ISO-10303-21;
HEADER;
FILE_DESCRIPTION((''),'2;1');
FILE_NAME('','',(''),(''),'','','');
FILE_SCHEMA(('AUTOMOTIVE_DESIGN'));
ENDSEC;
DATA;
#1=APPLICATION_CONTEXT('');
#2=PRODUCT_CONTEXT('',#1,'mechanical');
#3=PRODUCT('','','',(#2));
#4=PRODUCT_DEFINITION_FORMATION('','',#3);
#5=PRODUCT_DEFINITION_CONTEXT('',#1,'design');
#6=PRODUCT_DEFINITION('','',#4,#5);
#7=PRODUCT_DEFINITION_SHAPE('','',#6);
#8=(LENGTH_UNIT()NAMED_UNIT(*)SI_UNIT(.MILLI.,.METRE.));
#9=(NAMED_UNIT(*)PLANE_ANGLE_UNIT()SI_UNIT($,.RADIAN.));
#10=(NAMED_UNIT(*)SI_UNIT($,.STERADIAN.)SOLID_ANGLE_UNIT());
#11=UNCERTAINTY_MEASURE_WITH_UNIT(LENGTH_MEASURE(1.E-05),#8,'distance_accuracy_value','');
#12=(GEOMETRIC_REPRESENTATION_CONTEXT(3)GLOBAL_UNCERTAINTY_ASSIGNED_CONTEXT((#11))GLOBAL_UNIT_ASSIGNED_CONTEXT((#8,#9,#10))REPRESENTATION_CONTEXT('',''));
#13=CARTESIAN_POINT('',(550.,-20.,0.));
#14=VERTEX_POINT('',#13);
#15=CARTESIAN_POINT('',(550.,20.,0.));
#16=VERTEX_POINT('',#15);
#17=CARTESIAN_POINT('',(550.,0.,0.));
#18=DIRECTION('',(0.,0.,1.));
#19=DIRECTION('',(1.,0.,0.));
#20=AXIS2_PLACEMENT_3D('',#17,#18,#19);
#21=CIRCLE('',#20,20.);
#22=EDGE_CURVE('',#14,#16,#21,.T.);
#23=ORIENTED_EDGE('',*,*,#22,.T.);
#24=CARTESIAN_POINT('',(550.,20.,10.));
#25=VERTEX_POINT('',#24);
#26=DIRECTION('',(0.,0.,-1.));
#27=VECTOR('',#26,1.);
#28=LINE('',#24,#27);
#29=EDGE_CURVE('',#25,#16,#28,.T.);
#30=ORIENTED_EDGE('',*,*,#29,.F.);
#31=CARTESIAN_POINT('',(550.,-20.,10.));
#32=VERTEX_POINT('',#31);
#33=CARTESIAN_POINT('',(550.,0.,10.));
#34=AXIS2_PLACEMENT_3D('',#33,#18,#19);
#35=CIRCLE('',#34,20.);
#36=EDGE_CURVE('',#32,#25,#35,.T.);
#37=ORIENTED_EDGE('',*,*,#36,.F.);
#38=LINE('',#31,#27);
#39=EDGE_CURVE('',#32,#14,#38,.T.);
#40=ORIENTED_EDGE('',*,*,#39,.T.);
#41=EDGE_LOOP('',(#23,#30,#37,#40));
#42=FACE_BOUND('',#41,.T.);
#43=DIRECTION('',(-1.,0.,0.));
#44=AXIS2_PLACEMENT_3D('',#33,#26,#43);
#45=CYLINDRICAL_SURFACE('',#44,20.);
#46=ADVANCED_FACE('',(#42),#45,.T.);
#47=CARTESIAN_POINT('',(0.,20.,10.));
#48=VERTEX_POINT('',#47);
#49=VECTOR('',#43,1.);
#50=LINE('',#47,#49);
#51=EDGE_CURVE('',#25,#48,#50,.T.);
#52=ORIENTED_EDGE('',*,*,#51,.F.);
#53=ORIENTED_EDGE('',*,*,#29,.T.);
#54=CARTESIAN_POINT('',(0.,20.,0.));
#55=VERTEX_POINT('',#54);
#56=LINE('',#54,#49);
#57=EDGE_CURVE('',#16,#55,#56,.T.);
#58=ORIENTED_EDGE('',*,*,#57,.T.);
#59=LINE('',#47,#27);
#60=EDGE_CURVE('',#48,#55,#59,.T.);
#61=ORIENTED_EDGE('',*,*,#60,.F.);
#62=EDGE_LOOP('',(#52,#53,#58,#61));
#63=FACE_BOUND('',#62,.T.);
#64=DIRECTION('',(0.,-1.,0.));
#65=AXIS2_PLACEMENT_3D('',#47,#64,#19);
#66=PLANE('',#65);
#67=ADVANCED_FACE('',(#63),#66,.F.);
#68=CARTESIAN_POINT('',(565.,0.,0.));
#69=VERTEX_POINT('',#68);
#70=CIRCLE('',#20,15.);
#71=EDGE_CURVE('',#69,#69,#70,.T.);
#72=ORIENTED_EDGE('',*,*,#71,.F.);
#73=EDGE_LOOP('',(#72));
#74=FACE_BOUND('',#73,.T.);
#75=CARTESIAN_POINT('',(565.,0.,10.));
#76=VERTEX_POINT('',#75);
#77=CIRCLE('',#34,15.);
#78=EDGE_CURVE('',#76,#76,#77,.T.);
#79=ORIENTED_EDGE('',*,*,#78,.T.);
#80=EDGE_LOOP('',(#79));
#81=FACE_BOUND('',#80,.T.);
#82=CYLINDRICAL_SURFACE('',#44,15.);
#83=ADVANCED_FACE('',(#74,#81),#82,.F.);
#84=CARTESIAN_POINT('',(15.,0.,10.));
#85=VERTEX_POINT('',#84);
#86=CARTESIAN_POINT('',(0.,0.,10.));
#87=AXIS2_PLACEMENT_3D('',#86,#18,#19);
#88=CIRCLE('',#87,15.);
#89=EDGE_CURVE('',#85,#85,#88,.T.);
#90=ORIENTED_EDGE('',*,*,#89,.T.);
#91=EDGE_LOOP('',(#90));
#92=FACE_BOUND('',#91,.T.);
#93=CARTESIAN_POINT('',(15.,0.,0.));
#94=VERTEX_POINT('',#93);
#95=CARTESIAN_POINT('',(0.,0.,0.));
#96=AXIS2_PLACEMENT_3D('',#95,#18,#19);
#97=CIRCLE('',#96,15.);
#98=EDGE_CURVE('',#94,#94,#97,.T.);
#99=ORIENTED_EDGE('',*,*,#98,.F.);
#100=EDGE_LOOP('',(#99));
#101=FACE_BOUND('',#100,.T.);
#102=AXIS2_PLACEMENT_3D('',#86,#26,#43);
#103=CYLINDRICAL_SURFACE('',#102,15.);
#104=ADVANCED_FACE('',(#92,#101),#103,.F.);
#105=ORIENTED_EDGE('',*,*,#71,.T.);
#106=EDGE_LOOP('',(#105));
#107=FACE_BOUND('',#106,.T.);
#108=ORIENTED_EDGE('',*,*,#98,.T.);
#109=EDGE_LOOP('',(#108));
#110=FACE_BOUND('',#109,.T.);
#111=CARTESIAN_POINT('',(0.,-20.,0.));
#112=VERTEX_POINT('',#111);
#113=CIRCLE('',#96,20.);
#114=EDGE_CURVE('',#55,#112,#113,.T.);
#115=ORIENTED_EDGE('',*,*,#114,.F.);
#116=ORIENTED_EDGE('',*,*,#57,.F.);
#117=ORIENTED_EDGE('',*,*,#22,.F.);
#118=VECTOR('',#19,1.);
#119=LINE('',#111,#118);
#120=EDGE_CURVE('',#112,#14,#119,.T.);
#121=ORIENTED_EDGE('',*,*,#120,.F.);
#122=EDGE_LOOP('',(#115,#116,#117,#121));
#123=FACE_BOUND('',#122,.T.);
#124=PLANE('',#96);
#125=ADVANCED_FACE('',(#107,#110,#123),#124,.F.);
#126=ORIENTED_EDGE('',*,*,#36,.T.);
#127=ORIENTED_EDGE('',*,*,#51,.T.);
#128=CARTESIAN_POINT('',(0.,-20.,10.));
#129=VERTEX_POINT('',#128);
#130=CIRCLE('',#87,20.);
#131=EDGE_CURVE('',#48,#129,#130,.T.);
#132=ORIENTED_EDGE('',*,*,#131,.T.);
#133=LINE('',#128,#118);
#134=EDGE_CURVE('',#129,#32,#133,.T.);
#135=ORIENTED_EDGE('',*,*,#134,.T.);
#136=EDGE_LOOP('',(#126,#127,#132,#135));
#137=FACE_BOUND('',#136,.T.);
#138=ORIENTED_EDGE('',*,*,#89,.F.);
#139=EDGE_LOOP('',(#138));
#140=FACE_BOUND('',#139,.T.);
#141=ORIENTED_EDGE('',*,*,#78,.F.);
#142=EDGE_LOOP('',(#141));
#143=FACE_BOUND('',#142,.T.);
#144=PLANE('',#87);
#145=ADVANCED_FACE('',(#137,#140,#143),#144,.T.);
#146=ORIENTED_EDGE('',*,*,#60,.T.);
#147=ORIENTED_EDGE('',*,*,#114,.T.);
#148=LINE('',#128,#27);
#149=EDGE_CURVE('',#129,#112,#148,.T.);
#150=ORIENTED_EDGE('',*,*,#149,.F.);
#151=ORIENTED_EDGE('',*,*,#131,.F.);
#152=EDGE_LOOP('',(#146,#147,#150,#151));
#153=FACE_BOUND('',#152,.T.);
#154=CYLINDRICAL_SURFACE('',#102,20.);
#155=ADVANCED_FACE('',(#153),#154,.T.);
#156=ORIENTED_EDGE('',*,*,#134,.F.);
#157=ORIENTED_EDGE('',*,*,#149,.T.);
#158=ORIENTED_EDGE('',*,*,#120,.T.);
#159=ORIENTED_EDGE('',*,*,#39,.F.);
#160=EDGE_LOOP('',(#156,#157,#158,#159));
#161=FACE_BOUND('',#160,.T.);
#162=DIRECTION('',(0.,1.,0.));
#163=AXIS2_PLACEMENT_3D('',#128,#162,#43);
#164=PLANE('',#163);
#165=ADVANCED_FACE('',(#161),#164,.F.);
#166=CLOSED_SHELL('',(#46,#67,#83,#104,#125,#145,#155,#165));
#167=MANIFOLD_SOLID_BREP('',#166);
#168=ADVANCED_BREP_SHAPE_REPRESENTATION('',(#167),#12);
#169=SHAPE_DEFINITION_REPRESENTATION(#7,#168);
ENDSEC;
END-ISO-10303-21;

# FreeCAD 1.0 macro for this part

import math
import FreeCAD as App
import Part
import Sketcher
from FreeCAD import Vector
Q = App.Units.Quantity

doc = App.newDocument("Part")
body = doc.addObject("PartDesign::Body", "Body")

sketch1 = body.newObject("Sketcher::SketchObject", "Sketch")
sketch1.AttachmentSupport = (doc.getObject("XY_Plane"), [""])
sketch1.MapMode = "FlatFace"
sketch1.addGeometry([
    Part.LineSegment(Vector(550, 20, 0), Vector(0, 20, 0)),
    Part.ArcOfCircle(Part.Circle(Vector(0, 0, 0), Vector(0, 0, 1), 20), math.radians(90), math.radians(270)),
    Part.LineSegment(Vector(0, -20, 0), Vector(550, -20, 0)),
    Part.ArcOfCircle(Part.Circle(Vector(550, 0, 0), Vector(0, 0, 1), 20), math.radians(-90), math.radians(90)),
    Part.Circle(Vector(550, 0, 0), Vector(0, 0, 1), 15),
    Part.Circle(Vector(0, 0, 0), Vector(0, 0, 1), 15),
], False)
sketch1.addConstraint([
    Sketcher.Constraint("Tangent", 0, 2, 1, 1),
    Sketcher.Constraint("Tangent", 1, 2, 2, 1),
    Sketcher.Constraint("Tangent", 2, 2, 3, 1),
    Sketcher.Constraint("Tangent", 3, 2, 0, 1),
    Sketcher.Constraint("Horizontal", 0),
    Sketcher.Constraint("Horizontal", 2),
    Sketcher.Constraint("Coincident", 1, 3, -1, 1),
    Sketcher.Constraint("Coincident", 5, 3, -1, 1),
    Sketcher.Constraint("Coincident", 4, 3, 3, 3),
    Sketcher.Constraint("Equal", 4, 5),
    Sketcher.Constraint("Diameter", 4, Q("30 mm")),
    Sketcher.Constraint("Radius", 1, Q("20 mm")),
    Sketcher.Constraint("DistanceX", 0, 2, 0, 1, Q("550 mm")),
])
pad1 = body.newObject("PartDesign::Pad", "Pad")
pad1.Profile = sketch1
pad1.Length = 10

doc.recompute()
